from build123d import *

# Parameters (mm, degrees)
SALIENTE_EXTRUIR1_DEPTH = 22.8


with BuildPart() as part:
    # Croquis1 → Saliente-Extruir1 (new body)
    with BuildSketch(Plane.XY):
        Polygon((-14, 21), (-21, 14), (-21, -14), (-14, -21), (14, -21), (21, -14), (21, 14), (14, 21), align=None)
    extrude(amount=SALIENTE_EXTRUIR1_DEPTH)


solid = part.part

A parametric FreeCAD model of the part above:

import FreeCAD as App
import Part
import Sketcher
from FreeCAD import Vector


def add_polygon(sketch, points):
    """Adds a closed chain of lines whose ends are joined by coincident constraints."""
    first, n = sketch.GeometryCount, len(points)
    for a, b in zip(points, points[1:] + points[:1]):
        sketch.addGeometry(Part.LineSegment(App.Vector(*a, 0), App.Vector(*b, 0)), False)
    for i in range(n):
        sketch.addConstraint(Sketcher.Constraint("Coincident", first + i, 2, first + (i + 1) % n, 1))

doc = App.newDocument("Part")
body = doc.addObject("PartDesign::Body", "Body")

sketch1 = doc.addObject("Sketcher::SketchObject", "Sketch")
body.addObject(sketch1)
sketch1.AttachmentSupport = (doc.XY_Plane, [""])
sketch1.MapMode = "FlatFace"
add_polygon(sketch1, [(-14, 21), (-21, 14), (-21, -14), (-14, -21), (14, -21), (21, -14), (21, 14), (14, 21)])
sketch1.addConstraint(Sketcher.Constraint("Vertical", 1))
sketch1.addConstraint(Sketcher.Constraint("Horizontal", 3))
sketch1.addConstraint(Sketcher.Constraint("Vertical", 5))
sketch1.addConstraint(Sketcher.Constraint("Horizontal", 7))
sketch1.addConstraint(Sketcher.Constraint("Symmetric", 0, 2, 4, 2, -1, 1))
sketch1.addConstraint(Sketcher.Constraint("Symmetric", 2, 2, 6, 2, -1, 1))
sketch1.addConstraint(Sketcher.Constraint("Perpendicular", 0, 2))
sketch1.addConstraint(Sketcher.Constraint("Perpendicular", 2, 4))
sketch1.addConstraint(Sketcher.Constraint("Perpendicular", 4, 6))
sketch1.addConstraint(Sketcher.Constraint("Horizontal", 1, 2, 4, 2))
sketch1.addConstraint(Sketcher.Constraint("Vertical", 3, 2, 6, 2))
sketch1.addConstraint(Sketcher.Constraint("Equal", 7, 1))
sketch1.addConstraint(Sketcher.Constraint("DistanceX", 3, 1, 3, 2, 28.0))
sketch1.addConstraint(Sketcher.Constraint("DistanceX", 0, 2, -1, 1, 21.0))
pad1 = doc.addObject("PartDesign::Pad", "Pad")
body.addObject(pad1)
pad1.Profile = sketch1
pad1.Length = 22.8

doc.recompute()
